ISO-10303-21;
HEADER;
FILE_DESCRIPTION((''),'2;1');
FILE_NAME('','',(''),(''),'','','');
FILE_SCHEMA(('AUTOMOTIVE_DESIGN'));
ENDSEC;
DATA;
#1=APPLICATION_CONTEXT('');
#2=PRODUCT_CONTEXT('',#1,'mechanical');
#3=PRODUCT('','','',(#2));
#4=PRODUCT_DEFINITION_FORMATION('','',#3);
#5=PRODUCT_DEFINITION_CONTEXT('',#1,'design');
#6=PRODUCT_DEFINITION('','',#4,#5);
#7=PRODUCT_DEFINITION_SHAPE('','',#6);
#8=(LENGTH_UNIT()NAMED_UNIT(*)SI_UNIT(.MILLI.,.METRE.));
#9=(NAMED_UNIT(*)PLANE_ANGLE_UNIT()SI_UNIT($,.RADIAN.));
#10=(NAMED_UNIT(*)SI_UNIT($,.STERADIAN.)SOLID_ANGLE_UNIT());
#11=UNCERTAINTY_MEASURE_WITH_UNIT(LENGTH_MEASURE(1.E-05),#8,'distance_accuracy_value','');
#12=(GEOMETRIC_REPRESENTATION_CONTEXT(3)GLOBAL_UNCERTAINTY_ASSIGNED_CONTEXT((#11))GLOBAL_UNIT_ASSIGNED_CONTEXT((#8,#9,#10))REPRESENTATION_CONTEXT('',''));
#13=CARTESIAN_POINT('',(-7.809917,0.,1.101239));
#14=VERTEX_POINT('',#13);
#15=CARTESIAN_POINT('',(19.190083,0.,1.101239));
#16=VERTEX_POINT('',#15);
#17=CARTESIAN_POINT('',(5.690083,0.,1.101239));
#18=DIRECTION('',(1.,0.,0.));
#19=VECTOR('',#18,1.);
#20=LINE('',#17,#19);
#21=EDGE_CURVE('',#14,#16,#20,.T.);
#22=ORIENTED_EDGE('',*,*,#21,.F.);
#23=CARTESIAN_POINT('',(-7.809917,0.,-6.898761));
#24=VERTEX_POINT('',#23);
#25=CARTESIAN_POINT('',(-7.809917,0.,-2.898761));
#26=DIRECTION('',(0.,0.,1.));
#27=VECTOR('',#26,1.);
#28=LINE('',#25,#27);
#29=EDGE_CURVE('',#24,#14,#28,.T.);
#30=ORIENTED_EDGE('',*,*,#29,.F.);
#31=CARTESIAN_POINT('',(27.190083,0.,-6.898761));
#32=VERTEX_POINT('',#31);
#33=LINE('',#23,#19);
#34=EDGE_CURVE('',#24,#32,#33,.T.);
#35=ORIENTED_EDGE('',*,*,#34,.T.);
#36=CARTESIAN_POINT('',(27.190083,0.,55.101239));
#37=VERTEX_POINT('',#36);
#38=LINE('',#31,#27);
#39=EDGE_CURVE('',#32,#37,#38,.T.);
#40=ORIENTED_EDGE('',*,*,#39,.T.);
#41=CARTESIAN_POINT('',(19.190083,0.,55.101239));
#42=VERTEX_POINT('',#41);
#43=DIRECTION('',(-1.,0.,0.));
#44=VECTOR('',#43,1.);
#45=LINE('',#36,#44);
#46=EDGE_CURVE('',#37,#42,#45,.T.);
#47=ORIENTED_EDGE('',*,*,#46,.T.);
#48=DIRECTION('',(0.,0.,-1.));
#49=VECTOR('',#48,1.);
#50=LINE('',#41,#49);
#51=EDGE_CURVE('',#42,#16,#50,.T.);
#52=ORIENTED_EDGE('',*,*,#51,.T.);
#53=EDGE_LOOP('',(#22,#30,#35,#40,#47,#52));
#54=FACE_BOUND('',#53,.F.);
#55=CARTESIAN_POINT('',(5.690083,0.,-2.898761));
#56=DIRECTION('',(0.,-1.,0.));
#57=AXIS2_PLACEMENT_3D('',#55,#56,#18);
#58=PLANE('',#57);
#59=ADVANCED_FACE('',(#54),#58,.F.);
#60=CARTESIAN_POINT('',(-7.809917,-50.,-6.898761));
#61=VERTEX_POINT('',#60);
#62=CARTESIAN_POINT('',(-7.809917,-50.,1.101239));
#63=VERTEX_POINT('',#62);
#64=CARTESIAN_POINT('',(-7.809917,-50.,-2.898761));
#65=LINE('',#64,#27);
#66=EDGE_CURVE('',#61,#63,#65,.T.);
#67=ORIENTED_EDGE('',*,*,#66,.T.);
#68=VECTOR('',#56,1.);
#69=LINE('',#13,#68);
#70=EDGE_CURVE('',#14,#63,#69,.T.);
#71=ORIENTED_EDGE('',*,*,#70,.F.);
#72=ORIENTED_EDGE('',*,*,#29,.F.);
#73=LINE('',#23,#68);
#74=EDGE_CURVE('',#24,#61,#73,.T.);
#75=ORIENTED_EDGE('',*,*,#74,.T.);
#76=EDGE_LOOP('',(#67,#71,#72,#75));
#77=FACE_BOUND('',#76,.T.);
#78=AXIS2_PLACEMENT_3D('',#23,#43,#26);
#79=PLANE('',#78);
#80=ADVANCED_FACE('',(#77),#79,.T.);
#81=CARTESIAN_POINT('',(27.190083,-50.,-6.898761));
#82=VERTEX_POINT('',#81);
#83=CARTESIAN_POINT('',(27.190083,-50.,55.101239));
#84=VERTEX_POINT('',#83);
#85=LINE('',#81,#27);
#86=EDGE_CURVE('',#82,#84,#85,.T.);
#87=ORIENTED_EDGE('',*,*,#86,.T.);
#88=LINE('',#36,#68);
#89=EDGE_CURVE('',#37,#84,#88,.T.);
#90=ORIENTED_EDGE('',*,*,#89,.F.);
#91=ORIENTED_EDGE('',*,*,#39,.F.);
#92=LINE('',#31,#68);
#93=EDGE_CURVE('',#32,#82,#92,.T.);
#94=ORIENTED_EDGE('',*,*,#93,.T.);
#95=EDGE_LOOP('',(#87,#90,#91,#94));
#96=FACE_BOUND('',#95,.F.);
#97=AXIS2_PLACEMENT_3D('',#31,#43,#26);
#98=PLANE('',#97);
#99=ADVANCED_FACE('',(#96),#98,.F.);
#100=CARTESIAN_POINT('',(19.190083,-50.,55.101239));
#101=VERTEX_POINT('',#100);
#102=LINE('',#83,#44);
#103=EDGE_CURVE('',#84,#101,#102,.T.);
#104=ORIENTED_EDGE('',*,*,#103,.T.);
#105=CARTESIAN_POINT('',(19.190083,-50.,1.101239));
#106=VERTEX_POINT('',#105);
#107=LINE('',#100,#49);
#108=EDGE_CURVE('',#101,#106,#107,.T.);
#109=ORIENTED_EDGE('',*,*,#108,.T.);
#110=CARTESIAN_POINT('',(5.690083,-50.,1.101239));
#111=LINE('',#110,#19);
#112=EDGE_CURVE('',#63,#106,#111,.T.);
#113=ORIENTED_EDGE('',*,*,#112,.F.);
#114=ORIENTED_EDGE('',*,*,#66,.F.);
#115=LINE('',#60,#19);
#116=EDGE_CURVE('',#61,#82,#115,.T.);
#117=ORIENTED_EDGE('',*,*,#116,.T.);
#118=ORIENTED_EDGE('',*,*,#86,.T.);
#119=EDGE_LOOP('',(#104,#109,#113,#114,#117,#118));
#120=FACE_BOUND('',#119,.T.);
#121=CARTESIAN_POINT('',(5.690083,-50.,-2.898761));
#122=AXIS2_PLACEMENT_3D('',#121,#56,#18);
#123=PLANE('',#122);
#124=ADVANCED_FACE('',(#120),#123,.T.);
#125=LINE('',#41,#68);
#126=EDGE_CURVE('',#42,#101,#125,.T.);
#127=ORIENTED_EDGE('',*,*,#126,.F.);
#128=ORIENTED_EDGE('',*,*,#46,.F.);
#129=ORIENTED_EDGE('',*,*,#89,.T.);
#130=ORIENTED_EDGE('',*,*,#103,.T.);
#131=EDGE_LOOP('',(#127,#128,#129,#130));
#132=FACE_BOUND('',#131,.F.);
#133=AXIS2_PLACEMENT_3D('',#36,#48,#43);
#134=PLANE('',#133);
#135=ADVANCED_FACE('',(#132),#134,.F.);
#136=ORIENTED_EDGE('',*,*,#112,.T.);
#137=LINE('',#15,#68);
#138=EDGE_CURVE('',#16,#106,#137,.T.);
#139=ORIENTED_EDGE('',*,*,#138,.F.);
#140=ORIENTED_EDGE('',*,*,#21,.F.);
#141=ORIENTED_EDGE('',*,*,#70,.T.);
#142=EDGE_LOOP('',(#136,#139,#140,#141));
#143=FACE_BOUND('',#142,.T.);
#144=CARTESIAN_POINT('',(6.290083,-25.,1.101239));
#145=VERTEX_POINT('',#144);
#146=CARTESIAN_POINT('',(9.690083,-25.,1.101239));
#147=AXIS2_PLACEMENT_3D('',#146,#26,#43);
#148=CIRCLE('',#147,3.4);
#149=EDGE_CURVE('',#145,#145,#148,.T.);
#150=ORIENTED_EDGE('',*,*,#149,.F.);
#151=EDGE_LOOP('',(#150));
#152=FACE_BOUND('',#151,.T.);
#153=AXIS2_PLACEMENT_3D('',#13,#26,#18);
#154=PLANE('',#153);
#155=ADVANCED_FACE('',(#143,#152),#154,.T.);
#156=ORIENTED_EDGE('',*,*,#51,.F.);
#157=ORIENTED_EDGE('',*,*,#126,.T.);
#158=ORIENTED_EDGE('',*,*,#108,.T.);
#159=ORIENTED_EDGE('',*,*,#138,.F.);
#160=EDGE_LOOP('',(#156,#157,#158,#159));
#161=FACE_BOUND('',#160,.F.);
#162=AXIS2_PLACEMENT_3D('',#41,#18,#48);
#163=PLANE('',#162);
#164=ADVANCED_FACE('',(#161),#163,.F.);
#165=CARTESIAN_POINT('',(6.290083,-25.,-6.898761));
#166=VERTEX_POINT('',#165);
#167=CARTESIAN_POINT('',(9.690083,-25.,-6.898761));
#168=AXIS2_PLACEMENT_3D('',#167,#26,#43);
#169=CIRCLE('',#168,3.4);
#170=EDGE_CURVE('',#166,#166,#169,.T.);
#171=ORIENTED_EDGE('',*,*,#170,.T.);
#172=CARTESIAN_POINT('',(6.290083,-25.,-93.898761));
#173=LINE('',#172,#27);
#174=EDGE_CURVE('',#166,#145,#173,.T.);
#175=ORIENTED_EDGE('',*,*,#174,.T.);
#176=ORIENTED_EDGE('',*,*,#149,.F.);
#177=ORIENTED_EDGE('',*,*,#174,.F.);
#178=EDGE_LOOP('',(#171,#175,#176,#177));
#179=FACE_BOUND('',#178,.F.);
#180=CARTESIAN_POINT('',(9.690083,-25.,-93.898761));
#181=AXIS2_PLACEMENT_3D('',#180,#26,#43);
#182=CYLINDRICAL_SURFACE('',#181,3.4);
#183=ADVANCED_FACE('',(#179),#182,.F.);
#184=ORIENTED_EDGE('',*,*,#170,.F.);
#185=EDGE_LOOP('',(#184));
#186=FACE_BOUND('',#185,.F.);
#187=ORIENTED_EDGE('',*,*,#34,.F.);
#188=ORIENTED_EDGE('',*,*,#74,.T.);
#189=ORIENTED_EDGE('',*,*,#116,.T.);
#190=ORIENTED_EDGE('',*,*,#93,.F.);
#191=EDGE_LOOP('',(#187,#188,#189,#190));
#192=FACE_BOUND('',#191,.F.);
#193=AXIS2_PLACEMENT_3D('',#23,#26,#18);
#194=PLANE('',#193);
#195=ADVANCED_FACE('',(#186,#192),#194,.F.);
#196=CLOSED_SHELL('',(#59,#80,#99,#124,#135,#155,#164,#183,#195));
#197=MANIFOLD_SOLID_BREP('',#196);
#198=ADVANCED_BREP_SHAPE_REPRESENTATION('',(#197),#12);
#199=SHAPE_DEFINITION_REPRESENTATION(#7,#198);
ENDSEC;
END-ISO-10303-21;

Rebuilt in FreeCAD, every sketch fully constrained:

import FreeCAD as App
import Part
import Sketcher

doc = App.newDocument("Part")
body = doc.addObject("PartDesign::Body", "Body")

# Sketch on XZ plane
sketch1 = doc.addObject("Sketcher::SketchObject", "Sketch")
body.addObject(sketch1)
sketch1.AttachmentSupport = (doc.XZ_Plane, [""])
sketch1.MapMode = "FlatFace"
sketch1.addGeometry([
    Part.LineSegment(App.Vector(-7.809917, 1.101239, 0), App.Vector(-7.809917, -6.898761, 0)),  # 0
    Part.LineSegment(App.Vector(-7.809917, -6.898761, 0), App.Vector(27.190083, -6.898761, 0)),  # 1
    Part.LineSegment(App.Vector(27.190083, -6.898761, 0), App.Vector(27.190083, 55.101239, 0)),  # 2
    Part.LineSegment(App.Vector(27.190083, 55.101239, 0), App.Vector(19.190083, 55.101239, 0)),  # 3
    Part.LineSegment(App.Vector(19.190083, 55.101239, 0), App.Vector(19.190083, 1.101239, 0)),  # 4
    Part.LineSegment(App.Vector(19.190083, 1.101239, 0), App.Vector(-7.809917, 1.101239, 0)),  # 5
], False)
sketch1.addConstraint([
    Sketcher.Constraint("Coincident", 0, 2, 1, 1),
    Sketcher.Constraint("Coincident", 1, 2, 2, 1),
    Sketcher.Constraint("Coincident", 2, 2, 3, 1),
    Sketcher.Constraint("Coincident", 3, 2, 4, 1),
    Sketcher.Constraint("Coincident", 4, 2, 5, 1),
    Sketcher.Constraint("Coincident", 5, 2, 0, 1),
    Sketcher.Constraint("Vertical", 0),
    Sketcher.Constraint("Horizontal", 1),
    Sketcher.Constraint("Vertical", 2),
    Sketcher.Constraint("Horizontal", 3),
    Sketcher.Constraint("Vertical", 4),
    Sketcher.Constraint("Horizontal", 5),
    Sketcher.Constraint("Equal", 3, 0),
    Sketcher.Constraint("DistanceX", 1, 1, 1, 2, 35.0),
    Sketcher.Constraint("DistanceX", 3, 2, 3, 1, 8.0),
    Sketcher.Constraint("DistanceY", 2, 1, 2, 2, 62.0),
    Sketcher.Constraint("DistanceY", 0, 2, -1, 1, 6.898761),
    Sketcher.Constraint("DistanceX", 0, 2, -1, 1, 7.809917),
])
pad1 = doc.addObject("PartDesign::Pad", "Pad")
body.addObject(pad1)
pad1.Profile = sketch1
pad1.Length = 50

# Sketch on XY plane
sketch2 = doc.addObject("Sketcher::SketchObject", "Sketch001")
body.addObject(sketch2)
sketch2.AttachmentSupport = (doc.XY_Plane, [""])
sketch2.MapMode = "FlatFace"
sketch2.AttachmentOffset = App.Placement(App.Vector(0, 0, -6.898761), App.Rotation())
sketch2.addGeometry(Part.Circle(App.Vector(9.690083, -25, 0), App.Vector(0, 0, 1), 3.4), False)
sketch2.addConstraint([
    Sketcher.Constraint("Diameter", 0, 6.8),
    Sketcher.Constraint("DistanceY", 0, 3, -1, 1, 25.0),
    Sketcher.Constraint("DistanceX", -1, 1, 0, 3, 9.690083),
])
doc.recompute()
hole = doc.addObject("PartDesign::Hole", "Hole")
body.addObject(hole)
hole.Profile = sketch2
hole.ThreadType = "None"
hole.Diameter = 6.8
hole.DepthType = "ThroughAll"
hole.Reversed = True

doc.recompute()
